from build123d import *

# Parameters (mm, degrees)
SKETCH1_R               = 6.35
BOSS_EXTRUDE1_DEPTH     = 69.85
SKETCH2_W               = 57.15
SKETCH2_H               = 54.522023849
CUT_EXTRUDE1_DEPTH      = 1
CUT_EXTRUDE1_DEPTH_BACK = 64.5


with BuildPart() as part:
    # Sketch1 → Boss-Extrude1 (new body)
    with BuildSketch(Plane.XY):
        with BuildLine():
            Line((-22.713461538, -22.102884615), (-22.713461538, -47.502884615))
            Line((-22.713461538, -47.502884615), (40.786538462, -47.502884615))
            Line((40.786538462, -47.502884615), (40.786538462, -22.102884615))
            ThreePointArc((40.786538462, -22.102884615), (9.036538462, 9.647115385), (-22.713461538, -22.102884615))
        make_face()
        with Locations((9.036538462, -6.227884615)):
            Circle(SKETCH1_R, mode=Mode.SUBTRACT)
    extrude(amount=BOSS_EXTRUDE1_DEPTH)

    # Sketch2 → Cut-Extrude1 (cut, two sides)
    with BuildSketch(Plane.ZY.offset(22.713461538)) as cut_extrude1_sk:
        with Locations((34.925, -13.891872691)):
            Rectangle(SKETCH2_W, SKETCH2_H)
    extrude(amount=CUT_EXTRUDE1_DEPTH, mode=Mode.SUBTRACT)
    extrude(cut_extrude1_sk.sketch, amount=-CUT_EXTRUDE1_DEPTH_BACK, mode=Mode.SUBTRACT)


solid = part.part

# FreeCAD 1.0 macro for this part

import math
import FreeCAD as App
import Part
import Sketcher
Q = App.Units.Quantity


def add_polygon(sketch, points):
    """Adds a closed chain of lines whose ends are joined by coincident constraints."""
    first, n = sketch.GeometryCount, len(points)
    for a, b in zip(points, points[1:] + points[:1]):
        sketch.addGeometry(Part.LineSegment(App.Vector(*a, 0), App.Vector(*b, 0)), False)
    for i in range(n):
        sketch.addConstraint(Sketcher.Constraint("Coincident", first + i, 2, first + (i + 1) % n, 1))

doc = App.newDocument("Part")
body = doc.addObject("PartDesign::Body", "Body")

sketch1 = doc.addObject("Sketcher::SketchObject", "Sketch")
body.addObject(sketch1)
sketch1.AttachmentSupport = (doc.XY_Plane, [""])
sketch1.MapMode = "FlatFace"
sketch1.addGeometry([
    Part.LineSegment(App.Vector(-22.713462, -22.102885, 0), App.Vector(-22.713462, -47.502885, 0)),
    Part.LineSegment(App.Vector(-22.713462, -47.502885, 0), App.Vector(40.786538, -47.502885, 0)),
    Part.LineSegment(App.Vector(40.786538, -47.502885, 0), App.Vector(40.786538, -22.102885, 0)),
    Part.ArcOfCircle(Part.Circle(App.Vector(9.036538, -22.102885, 0), App.Vector(0, 0, 1), 31.75), math.radians(0), math.radians(180)),
    Part.Circle(App.Vector(9.036538, -6.227885, 0), App.Vector(0, 0, 1), 6.35),
], False)
sketch1.addConstraint([
    Sketcher.Constraint("Coincident", 0, 2, 1, 1),
    Sketcher.Constraint("Coincident", 1, 2, 2, 1),
    Sketcher.Constraint("Tangent", 2, 2, 3, 1),
    Sketcher.Constraint("Tangent", 3, 2, 0, 1),
    Sketcher.Constraint("Vertical", 0),
    Sketcher.Constraint("Horizontal", 1),
    Sketcher.Constraint("Vertical", 2),
    Sketcher.Constraint("Vertical", 3, 3, 4, 3),
    Sketcher.Constraint("Diameter", 4, Q("0.5 in")),
    Sketcher.Constraint("DistanceY", 0, 2, 0, 1, Q("1 in")),
    Sketcher.Constraint("Radius", 3, Q("1.25 in")),
    Sketcher.Constraint("DistanceY", 3, 3, 4, 3, Q("0.625 in")),
    Sketcher.Constraint("DistanceX", -1, 1, 3, 3, Q("9.036538 mm")),
    Sketcher.Constraint("DistanceY", 3, 3, -1, 1, Q("22.102885 mm")),
])
pad1 = doc.addObject("PartDesign::Pad", "Pad")
body.addObject(pad1)
pad1.Profile = sketch1
pad1.Length = Q("2.75 in")

sketch2 = doc.addObject("Sketcher::SketchObject", "Sketch001")
body.addObject(sketch2)
sketch2.AttachmentSupport = (doc.YZ_Plane, [""])
sketch2.MapMode = "FlatFace"
sketch2.AttachmentOffset = App.Placement(App.Vector(0, 0, -22.713462), App.Rotation())
add_polygon(sketch2, [(13.369139, 6.35), (-41.152885, 6.35), (-41.152885, 63.5), (13.369139, 63.5)])
sketch2.addConstraint([
    Sketcher.Constraint("Horizontal", 0),
    Sketcher.Constraint("Vertical", 1),
    Sketcher.Constraint("Horizontal", 2),
    Sketcher.Constraint("Vertical", 3),
    Sketcher.Constraint("DistanceY", 1, 1, 1, 2, Q("2.25 in")),
    Sketcher.Constraint("DistanceY", -1, 1, 1, 2, Q("2.5 in")),
    Sketcher.Constraint("DistanceX", 0, 2, 0, 1, Q("54.522024 mm")),
    Sketcher.Constraint("DistanceX", -1, 1, 2, 2, Q("13.369139 mm")),
])
pocket1 = doc.addObject("PartDesign::Pocket", "Pocket")
body.addObject(pocket1)
pocket1.Profile = sketch2
pocket1.Type = "ThroughAll"
pocket1.Midplane = True

doc.recompute()
